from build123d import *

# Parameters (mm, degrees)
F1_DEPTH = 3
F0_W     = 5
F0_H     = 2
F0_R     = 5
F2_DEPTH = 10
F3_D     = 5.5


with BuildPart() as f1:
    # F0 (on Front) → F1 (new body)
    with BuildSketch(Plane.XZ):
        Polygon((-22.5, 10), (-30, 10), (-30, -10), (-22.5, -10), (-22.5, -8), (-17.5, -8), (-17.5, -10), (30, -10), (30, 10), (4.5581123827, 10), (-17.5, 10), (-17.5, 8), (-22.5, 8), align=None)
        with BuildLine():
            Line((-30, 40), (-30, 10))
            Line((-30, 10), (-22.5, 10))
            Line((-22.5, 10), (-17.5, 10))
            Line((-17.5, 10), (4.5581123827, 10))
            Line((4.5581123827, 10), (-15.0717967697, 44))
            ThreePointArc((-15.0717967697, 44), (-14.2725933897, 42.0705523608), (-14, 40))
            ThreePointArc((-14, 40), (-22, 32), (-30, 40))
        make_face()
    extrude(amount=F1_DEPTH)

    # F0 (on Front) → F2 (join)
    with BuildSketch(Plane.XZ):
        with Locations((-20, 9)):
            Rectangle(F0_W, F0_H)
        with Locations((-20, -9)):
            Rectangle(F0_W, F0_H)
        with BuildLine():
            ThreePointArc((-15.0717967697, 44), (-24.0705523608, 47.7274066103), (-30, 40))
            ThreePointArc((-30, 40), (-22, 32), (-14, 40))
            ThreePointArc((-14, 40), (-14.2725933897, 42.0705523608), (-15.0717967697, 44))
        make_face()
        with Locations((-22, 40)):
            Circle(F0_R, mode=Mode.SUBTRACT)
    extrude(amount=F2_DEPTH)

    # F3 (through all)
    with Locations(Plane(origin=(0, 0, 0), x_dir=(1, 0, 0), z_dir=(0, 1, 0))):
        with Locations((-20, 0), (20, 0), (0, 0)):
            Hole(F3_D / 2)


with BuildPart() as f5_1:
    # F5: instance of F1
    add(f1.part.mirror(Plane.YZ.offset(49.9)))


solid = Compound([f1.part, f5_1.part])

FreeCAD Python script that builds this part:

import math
import FreeCAD as App
import Part
import Sketcher
from FreeCAD import Vector
Q = App.Units.Quantity

doc = App.newDocument("Part")
body = doc.addObject("PartDesign::Body", "Body")

# Sketch on XZ plane
sketch1 = body.newObject("Sketcher::SketchObject", "Sketch")
sketch1.AttachmentSupport = (doc.getObject("XZ_Plane"), [""])
sketch1.MapMode = "FlatFace"
sketch1.addGeometry(Part.LineSegment(Vector(-30, -10, 0), Vector(-22.5, -10, 0)), False)
sketch1.addGeometry(Part.LineSegment(Vector(-22.5, -10, 0), Vector(-22.5, -8, 0)), False)
sketch1.addGeometry(Part.LineSegment(Vector(-22.5, -8, 0), Vector(-17.5, -8, 0)), False)
sketch1.addGeometry(Part.LineSegment(Vector(-17.5, -8, 0), Vector(-17.5, -10, 0)), False)
sketch1.addGeometry(Part.LineSegment(Vector(-17.5, -10, 0), Vector(30, -10, 0)), False)
sketch1.addGeometry(Part.LineSegment(Vector(30, -10, 0), Vector(30, 10, 0)), False)
sketch1.addGeometry(Part.LineSegment(Vector(30, 10, 0), Vector(4.6, 10, 0)), False)
sketch1.addGeometry(Part.LineSegment(Vector(4.6, 10, 0), Vector(-15.1, 44, 0)), False)
sketch1.addGeometry(Part.ArcOfCircle(Part.Circle(Vector(-22, 40, 0), Vector(0, 0, 1), 8), math.radians(0), math.radians(30)), False)
sketch1.addGeometry(Part.ArcOfCircle(Part.Circle(Vector(-22, 40, 0), Vector(0, 0, 1), 8), math.radians(180), math.radians(360)), False)
sketch1.addGeometry(Part.LineSegment(Vector(-30, 40, 0), Vector(-30, -10, 0)), False)
sketch1.addGeometry(Part.LineSegment(Vector(-17.5, 10, 0), Vector(-17.5, 8, 0)), False)
sketch1.addGeometry(Part.LineSegment(Vector(-17.5, 8, 0), Vector(-22.5, 8, 0)), False)
sketch1.addGeometry(Part.LineSegment(Vector(-22.5, 8, 0), Vector(-22.5, 10, 0)), False)
sketch1.addGeometry(Part.LineSegment(Vector(-22.5, 10, 0), Vector(-17.5, 10, 0)), False)
sketch1.addConstraint(Sketcher.Constraint("Coincident", 0, 2, 1, 1))
sketch1.addConstraint(Sketcher.Constraint("Coincident", 1, 2, 2, 1))
sketch1.addConstraint(Sketcher.Constraint("Coincident", 2, 2, 3, 1))
sketch1.addConstraint(Sketcher.Constraint("Coincident", 3, 2, 4, 1))
sketch1.addConstraint(Sketcher.Constraint("Coincident", 4, 2, 5, 1))
sketch1.addConstraint(Sketcher.Constraint("Coincident", 5, 2, 6, 1))
sketch1.addConstraint(Sketcher.Constraint("Coincident", 6, 2, 7, 1))
sketch1.addConstraint(Sketcher.Constraint("Tangent", 7, 2, 8, 2))
sketch1.addConstraint(Sketcher.Constraint("Tangent", 8, 1, 9, 2))
sketch1.addConstraint(Sketcher.Constraint("Tangent", 9, 1, 10, 1))
sketch1.addConstraint(Sketcher.Constraint("Coincident", 10, 2, 0, 1))
sketch1.addConstraint(Sketcher.Constraint("Coincident", 11, 2, 12, 1))
sketch1.addConstraint(Sketcher.Constraint("Coincident", 12, 2, 13, 1))
sketch1.addConstraint(Sketcher.Constraint("Coincident", 13, 2, 14, 1))
sketch1.addConstraint(Sketcher.Constraint("Coincident", 14, 2, 11, 1))
sketch1.addConstraint(Sketcher.Constraint("Horizontal", 0))
sketch1.addConstraint(Sketcher.Constraint("Vertical", 1))
sketch1.addConstraint(Sketcher.Constraint("Horizontal", 2))
sketch1.addConstraint(Sketcher.Constraint("Vertical", 3))
sketch1.addConstraint(Sketcher.Constraint("Horizontal", 4))
sketch1.addConstraint(Sketcher.Constraint("Vertical", 5))
sketch1.addConstraint(Sketcher.Constraint("Horizontal", 6))
sketch1.addConstraint(Sketcher.Constraint("Vertical", 10))
sketch1.addConstraint(Sketcher.Constraint("Vertical", 11))
sketch1.addConstraint(Sketcher.Constraint("Horizontal", 12))
sketch1.addConstraint(Sketcher.Constraint("Vertical", 13))
sketch1.addConstraint(Sketcher.Constraint("Horizontal", 14))
sketch1.addConstraint(Sketcher.Constraint("Equal", 8, 9))
sketch1.addConstraint(Sketcher.Constraint("Symmetric", 5, 2, 10, 2, -1, 1))
sketch1.addConstraint(Sketcher.Constraint("Symmetric", 2, 2, 11, 2, -1))
sketch1.addConstraint(Sketcher.Constraint("Symmetric", 0, 2, 13, 2, -1))
sketch1.addConstraint(Sketcher.Constraint("Horizontal", 0, 2, 3, 2))
sketch1.addConstraint(Sketcher.Constraint("Horizontal", 9, 3, 8, 1))
sketch1.addConstraint(Sketcher.Constraint("Radius", 8, Q("8 mm")))
sketch1.addConstraint(Sketcher.Constraint("DistanceX", 2, 1, 2, 2, Q("5 mm")))
sketch1.addConstraint(Sketcher.Constraint("DistanceY", 1, 1, 1, 2, Q("2 mm")))
sketch1.addConstraint(Sketcher.Constraint("DistanceY", 5, 1, 5, 2, Q("20 mm")))
sketch1.addConstraint(Sketcher.Constraint("DistanceY", 10, 2, 10, 1, Q("50 mm")))
sketch1.addConstraint(Sketcher.Constraint("Angle", 7, Q("120 deg")))
sketch1.addConstraint(Sketcher.Constraint("DistanceX", 0, 1, 0, 2, Q("7.5 mm")))
sketch1.addConstraint(Sketcher.Constraint("DistanceX", 4, 1, 4, 2, Q("47.5 mm")))
pad1 = body.newObject("PartDesign::Pad", "Pad")
pad1.Profile = sketch1
pad1.Length = 3

# Sketch on XZ plane
sketch2 = body.newObject("Sketcher::SketchObject", "Sketch001")
sketch2.AttachmentSupport = (doc.getObject("XZ_Plane"), [""])
sketch2.MapMode = "FlatFace"
sketch2.addGeometry(Part.LineSegment(Vector(-22.5, 10, 0), Vector(-22.5, 8, 0)), False)
sketch2.addGeometry(Part.LineSegment(Vector(-22.5, 8, 0), Vector(-17.5, 8, 0)), False)
sketch2.addGeometry(Part.LineSegment(Vector(-17.5, 8, 0), Vector(-17.5, 10, 0)), False)
sketch2.addGeometry(Part.LineSegment(Vector(-17.5, 10, 0), Vector(-22.5, 10, 0)), False)
sketch2.addGeometry(Part.LineSegment(Vector(-22.5, -8, 0), Vector(-22.5, -10, 0)), False)
sketch2.addGeometry(Part.LineSegment(Vector(-22.5, -10, 0), Vector(-17.5, -10, 0)), False)
sketch2.addGeometry(Part.LineSegment(Vector(-17.5, -10, 0), Vector(-17.5, -8, 0)), False)
sketch2.addGeometry(Part.LineSegment(Vector(-17.5, -8, 0), Vector(-22.5, -8, 0)), False)
sketch2.addGeometry(Part.ArcOfCircle(Part.Circle(Vector(-22, 40, 0), Vector(0, 0, 1), 8), math.radians(30), math.radians(180)), False)
sketch2.addGeometry(Part.ArcOfCircle(Part.Circle(Vector(-22, 40, 0), Vector(0, 0, 1), 8), math.radians(180), math.radians(360)), False)
sketch2.addGeometry(Part.ArcOfCircle(Part.Circle(Vector(-22, 40, 0), Vector(0, 0, 1), 8), math.radians(0), math.radians(30)), False)
sketch2.addGeometry(Part.Circle(Vector(-22, 40, 0), Vector(0, 0, 1), 5), False)
sketch2.addConstraint(Sketcher.Constraint("Coincident", 0, 2, 1, 1))
sketch2.addConstraint(Sketcher.Constraint("Coincident", 1, 2, 2, 1))
sketch2.addConstraint(Sketcher.Constraint("Coincident", 2, 2, 3, 1))
sketch2.addConstraint(Sketcher.Constraint("Coincident", 3, 2, 0, 1))
sketch2.addConstraint(Sketcher.Constraint("Coincident", 4, 2, 5, 1))
sketch2.addConstraint(Sketcher.Constraint("Coincident", 5, 2, 6, 1))
sketch2.addConstraint(Sketcher.Constraint("Coincident", 6, 2, 7, 1))
sketch2.addConstraint(Sketcher.Constraint("Coincident", 7, 2, 4, 1))
sketch2.addConstraint(Sketcher.Constraint("Tangent", 8, 2, 9, 1))
sketch2.addConstraint(Sketcher.Constraint("Tangent", 9, 2, 10, 1))
sketch2.addConstraint(Sketcher.Constraint("Tangent", 10, 2, 8, 1))
sketch2.addConstraint(Sketcher.Constraint("Vertical", 0))
sketch2.addConstraint(Sketcher.Constraint("Horizontal", 1))
sketch2.addConstraint(Sketcher.Constraint("Vertical", 2))
sketch2.addConstraint(Sketcher.Constraint("Horizontal", 3))
sketch2.addConstraint(Sketcher.Constraint("Vertical", 4))
sketch2.addConstraint(Sketcher.Constraint("Horizontal", 5))
sketch2.addConstraint(Sketcher.Constraint("Vertical", 6))
sketch2.addConstraint(Sketcher.Constraint("Horizontal", 7))
sketch2.addConstraint(Sketcher.Constraint("Coincident", 11, 3, 8, 3))
sketch2.addConstraint(Sketcher.Constraint("Symmetric", 3, 2, 4, 2, -1))
sketch2.addConstraint(Sketcher.Constraint("Symmetric", 1, 2, 6, 2, -1))
sketch2.addConstraint(Sketcher.Constraint("Horizontal", 11, 3, 8, 2))
sketch2.addConstraint(Sketcher.Constraint("Horizontal", 8, 2, 9, 2))
sketch2.addConstraint(Sketcher.Constraint("Diameter", 11, Q("10 mm")))
sketch2.addConstraint(Sketcher.Constraint("Radius", 8, Q("8 mm")))
sketch2.addConstraint(Sketcher.Constraint("DistanceX", 1, 1, 1, 2, Q("5 mm")))
sketch2.addConstraint(Sketcher.Constraint("DistanceY", 0, 2, 0, 1, Q("2 mm")))
sketch2.addConstraint(Sketcher.Constraint("DistanceX", 8, 3, -1, 1, Q("22 mm")))
sketch2.addConstraint(Sketcher.Constraint("DistanceY", -1, 1, 8, 3, Q("40 mm")))
sketch2.addConstraint(Sketcher.Constraint("DistanceY", -1, 1, 0, 2, Q("8 mm")))
sketch2.addConstraint(Sketcher.Constraint("DistanceY", -1, 1, 10, 2, Q("44 mm")))
sketch2.addConstraint(Sketcher.Constraint("DistanceX", 0, 2, -1, 1, Q("22.5 mm")))
pad2 = body.newObject("PartDesign::Pad", "Pad001")
pad2.Profile = sketch2
pad2.Length = 10

# Sketch on XZ plane
sketch3 = body.newObject("Sketcher::SketchObject", "Sketch002")
sketch3.AttachmentSupport = (doc.getObject("XZ_Plane"), [""])
sketch3.MapMode = "FlatFace"
sketch3.addGeometry(Part.Circle(Vector(-20, 0, 0), Vector(0, 0, 1), 2.8), False)
sketch3.addGeometry(Part.Circle(Vector(20, 0, 0), Vector(0, 0, 1), 2.8), False)
sketch3.addGeometry(Part.Circle(Vector(0, 0, 0), Vector(0, 0, 1), 2.8), False)
sketch3.addConstraint(Sketcher.Constraint("Coincident", 2, 3, -1, 1))
sketch3.addConstraint(Sketcher.Constraint("Equal", 0, 1))
sketch3.addConstraint(Sketcher.Constraint("Equal", 1, 2))
sketch3.addConstraint(Sketcher.Constraint("Symmetric", 0, 3, 1, 3, -1, 1))
sketch3.addConstraint(Sketcher.Constraint("PointOnObject", 0, 3, -1))
sketch3.addConstraint(Sketcher.Constraint("Diameter", 0, Q("5.5 mm")))
sketch3.addConstraint(Sketcher.Constraint("DistanceX", 0, 3, -1, 1, Q("20 mm")))
doc.recompute()
hole = body.newObject("PartDesign::Hole", "Hole")
hole.Profile = sketch3
hole.ThreadType = "None"
hole.Diameter = 5.5
hole.DepthType = "ThroughAll"
hole.Reversed = True
body2 = doc.addObject("PartDesign::Body", "Body001")
doc.recompute()

mirroring = doc.addObject("Part::Mirroring", "Mirroring")
mirroring.Source = body
mirroring.Base = Vector(49.9, 0, 0)
mirroring.Normal = Vector(1, 0, 0)
body2.BaseFeature = mirroring
doc.recompute()
mirroring.Visibility = False

doc.recompute()
